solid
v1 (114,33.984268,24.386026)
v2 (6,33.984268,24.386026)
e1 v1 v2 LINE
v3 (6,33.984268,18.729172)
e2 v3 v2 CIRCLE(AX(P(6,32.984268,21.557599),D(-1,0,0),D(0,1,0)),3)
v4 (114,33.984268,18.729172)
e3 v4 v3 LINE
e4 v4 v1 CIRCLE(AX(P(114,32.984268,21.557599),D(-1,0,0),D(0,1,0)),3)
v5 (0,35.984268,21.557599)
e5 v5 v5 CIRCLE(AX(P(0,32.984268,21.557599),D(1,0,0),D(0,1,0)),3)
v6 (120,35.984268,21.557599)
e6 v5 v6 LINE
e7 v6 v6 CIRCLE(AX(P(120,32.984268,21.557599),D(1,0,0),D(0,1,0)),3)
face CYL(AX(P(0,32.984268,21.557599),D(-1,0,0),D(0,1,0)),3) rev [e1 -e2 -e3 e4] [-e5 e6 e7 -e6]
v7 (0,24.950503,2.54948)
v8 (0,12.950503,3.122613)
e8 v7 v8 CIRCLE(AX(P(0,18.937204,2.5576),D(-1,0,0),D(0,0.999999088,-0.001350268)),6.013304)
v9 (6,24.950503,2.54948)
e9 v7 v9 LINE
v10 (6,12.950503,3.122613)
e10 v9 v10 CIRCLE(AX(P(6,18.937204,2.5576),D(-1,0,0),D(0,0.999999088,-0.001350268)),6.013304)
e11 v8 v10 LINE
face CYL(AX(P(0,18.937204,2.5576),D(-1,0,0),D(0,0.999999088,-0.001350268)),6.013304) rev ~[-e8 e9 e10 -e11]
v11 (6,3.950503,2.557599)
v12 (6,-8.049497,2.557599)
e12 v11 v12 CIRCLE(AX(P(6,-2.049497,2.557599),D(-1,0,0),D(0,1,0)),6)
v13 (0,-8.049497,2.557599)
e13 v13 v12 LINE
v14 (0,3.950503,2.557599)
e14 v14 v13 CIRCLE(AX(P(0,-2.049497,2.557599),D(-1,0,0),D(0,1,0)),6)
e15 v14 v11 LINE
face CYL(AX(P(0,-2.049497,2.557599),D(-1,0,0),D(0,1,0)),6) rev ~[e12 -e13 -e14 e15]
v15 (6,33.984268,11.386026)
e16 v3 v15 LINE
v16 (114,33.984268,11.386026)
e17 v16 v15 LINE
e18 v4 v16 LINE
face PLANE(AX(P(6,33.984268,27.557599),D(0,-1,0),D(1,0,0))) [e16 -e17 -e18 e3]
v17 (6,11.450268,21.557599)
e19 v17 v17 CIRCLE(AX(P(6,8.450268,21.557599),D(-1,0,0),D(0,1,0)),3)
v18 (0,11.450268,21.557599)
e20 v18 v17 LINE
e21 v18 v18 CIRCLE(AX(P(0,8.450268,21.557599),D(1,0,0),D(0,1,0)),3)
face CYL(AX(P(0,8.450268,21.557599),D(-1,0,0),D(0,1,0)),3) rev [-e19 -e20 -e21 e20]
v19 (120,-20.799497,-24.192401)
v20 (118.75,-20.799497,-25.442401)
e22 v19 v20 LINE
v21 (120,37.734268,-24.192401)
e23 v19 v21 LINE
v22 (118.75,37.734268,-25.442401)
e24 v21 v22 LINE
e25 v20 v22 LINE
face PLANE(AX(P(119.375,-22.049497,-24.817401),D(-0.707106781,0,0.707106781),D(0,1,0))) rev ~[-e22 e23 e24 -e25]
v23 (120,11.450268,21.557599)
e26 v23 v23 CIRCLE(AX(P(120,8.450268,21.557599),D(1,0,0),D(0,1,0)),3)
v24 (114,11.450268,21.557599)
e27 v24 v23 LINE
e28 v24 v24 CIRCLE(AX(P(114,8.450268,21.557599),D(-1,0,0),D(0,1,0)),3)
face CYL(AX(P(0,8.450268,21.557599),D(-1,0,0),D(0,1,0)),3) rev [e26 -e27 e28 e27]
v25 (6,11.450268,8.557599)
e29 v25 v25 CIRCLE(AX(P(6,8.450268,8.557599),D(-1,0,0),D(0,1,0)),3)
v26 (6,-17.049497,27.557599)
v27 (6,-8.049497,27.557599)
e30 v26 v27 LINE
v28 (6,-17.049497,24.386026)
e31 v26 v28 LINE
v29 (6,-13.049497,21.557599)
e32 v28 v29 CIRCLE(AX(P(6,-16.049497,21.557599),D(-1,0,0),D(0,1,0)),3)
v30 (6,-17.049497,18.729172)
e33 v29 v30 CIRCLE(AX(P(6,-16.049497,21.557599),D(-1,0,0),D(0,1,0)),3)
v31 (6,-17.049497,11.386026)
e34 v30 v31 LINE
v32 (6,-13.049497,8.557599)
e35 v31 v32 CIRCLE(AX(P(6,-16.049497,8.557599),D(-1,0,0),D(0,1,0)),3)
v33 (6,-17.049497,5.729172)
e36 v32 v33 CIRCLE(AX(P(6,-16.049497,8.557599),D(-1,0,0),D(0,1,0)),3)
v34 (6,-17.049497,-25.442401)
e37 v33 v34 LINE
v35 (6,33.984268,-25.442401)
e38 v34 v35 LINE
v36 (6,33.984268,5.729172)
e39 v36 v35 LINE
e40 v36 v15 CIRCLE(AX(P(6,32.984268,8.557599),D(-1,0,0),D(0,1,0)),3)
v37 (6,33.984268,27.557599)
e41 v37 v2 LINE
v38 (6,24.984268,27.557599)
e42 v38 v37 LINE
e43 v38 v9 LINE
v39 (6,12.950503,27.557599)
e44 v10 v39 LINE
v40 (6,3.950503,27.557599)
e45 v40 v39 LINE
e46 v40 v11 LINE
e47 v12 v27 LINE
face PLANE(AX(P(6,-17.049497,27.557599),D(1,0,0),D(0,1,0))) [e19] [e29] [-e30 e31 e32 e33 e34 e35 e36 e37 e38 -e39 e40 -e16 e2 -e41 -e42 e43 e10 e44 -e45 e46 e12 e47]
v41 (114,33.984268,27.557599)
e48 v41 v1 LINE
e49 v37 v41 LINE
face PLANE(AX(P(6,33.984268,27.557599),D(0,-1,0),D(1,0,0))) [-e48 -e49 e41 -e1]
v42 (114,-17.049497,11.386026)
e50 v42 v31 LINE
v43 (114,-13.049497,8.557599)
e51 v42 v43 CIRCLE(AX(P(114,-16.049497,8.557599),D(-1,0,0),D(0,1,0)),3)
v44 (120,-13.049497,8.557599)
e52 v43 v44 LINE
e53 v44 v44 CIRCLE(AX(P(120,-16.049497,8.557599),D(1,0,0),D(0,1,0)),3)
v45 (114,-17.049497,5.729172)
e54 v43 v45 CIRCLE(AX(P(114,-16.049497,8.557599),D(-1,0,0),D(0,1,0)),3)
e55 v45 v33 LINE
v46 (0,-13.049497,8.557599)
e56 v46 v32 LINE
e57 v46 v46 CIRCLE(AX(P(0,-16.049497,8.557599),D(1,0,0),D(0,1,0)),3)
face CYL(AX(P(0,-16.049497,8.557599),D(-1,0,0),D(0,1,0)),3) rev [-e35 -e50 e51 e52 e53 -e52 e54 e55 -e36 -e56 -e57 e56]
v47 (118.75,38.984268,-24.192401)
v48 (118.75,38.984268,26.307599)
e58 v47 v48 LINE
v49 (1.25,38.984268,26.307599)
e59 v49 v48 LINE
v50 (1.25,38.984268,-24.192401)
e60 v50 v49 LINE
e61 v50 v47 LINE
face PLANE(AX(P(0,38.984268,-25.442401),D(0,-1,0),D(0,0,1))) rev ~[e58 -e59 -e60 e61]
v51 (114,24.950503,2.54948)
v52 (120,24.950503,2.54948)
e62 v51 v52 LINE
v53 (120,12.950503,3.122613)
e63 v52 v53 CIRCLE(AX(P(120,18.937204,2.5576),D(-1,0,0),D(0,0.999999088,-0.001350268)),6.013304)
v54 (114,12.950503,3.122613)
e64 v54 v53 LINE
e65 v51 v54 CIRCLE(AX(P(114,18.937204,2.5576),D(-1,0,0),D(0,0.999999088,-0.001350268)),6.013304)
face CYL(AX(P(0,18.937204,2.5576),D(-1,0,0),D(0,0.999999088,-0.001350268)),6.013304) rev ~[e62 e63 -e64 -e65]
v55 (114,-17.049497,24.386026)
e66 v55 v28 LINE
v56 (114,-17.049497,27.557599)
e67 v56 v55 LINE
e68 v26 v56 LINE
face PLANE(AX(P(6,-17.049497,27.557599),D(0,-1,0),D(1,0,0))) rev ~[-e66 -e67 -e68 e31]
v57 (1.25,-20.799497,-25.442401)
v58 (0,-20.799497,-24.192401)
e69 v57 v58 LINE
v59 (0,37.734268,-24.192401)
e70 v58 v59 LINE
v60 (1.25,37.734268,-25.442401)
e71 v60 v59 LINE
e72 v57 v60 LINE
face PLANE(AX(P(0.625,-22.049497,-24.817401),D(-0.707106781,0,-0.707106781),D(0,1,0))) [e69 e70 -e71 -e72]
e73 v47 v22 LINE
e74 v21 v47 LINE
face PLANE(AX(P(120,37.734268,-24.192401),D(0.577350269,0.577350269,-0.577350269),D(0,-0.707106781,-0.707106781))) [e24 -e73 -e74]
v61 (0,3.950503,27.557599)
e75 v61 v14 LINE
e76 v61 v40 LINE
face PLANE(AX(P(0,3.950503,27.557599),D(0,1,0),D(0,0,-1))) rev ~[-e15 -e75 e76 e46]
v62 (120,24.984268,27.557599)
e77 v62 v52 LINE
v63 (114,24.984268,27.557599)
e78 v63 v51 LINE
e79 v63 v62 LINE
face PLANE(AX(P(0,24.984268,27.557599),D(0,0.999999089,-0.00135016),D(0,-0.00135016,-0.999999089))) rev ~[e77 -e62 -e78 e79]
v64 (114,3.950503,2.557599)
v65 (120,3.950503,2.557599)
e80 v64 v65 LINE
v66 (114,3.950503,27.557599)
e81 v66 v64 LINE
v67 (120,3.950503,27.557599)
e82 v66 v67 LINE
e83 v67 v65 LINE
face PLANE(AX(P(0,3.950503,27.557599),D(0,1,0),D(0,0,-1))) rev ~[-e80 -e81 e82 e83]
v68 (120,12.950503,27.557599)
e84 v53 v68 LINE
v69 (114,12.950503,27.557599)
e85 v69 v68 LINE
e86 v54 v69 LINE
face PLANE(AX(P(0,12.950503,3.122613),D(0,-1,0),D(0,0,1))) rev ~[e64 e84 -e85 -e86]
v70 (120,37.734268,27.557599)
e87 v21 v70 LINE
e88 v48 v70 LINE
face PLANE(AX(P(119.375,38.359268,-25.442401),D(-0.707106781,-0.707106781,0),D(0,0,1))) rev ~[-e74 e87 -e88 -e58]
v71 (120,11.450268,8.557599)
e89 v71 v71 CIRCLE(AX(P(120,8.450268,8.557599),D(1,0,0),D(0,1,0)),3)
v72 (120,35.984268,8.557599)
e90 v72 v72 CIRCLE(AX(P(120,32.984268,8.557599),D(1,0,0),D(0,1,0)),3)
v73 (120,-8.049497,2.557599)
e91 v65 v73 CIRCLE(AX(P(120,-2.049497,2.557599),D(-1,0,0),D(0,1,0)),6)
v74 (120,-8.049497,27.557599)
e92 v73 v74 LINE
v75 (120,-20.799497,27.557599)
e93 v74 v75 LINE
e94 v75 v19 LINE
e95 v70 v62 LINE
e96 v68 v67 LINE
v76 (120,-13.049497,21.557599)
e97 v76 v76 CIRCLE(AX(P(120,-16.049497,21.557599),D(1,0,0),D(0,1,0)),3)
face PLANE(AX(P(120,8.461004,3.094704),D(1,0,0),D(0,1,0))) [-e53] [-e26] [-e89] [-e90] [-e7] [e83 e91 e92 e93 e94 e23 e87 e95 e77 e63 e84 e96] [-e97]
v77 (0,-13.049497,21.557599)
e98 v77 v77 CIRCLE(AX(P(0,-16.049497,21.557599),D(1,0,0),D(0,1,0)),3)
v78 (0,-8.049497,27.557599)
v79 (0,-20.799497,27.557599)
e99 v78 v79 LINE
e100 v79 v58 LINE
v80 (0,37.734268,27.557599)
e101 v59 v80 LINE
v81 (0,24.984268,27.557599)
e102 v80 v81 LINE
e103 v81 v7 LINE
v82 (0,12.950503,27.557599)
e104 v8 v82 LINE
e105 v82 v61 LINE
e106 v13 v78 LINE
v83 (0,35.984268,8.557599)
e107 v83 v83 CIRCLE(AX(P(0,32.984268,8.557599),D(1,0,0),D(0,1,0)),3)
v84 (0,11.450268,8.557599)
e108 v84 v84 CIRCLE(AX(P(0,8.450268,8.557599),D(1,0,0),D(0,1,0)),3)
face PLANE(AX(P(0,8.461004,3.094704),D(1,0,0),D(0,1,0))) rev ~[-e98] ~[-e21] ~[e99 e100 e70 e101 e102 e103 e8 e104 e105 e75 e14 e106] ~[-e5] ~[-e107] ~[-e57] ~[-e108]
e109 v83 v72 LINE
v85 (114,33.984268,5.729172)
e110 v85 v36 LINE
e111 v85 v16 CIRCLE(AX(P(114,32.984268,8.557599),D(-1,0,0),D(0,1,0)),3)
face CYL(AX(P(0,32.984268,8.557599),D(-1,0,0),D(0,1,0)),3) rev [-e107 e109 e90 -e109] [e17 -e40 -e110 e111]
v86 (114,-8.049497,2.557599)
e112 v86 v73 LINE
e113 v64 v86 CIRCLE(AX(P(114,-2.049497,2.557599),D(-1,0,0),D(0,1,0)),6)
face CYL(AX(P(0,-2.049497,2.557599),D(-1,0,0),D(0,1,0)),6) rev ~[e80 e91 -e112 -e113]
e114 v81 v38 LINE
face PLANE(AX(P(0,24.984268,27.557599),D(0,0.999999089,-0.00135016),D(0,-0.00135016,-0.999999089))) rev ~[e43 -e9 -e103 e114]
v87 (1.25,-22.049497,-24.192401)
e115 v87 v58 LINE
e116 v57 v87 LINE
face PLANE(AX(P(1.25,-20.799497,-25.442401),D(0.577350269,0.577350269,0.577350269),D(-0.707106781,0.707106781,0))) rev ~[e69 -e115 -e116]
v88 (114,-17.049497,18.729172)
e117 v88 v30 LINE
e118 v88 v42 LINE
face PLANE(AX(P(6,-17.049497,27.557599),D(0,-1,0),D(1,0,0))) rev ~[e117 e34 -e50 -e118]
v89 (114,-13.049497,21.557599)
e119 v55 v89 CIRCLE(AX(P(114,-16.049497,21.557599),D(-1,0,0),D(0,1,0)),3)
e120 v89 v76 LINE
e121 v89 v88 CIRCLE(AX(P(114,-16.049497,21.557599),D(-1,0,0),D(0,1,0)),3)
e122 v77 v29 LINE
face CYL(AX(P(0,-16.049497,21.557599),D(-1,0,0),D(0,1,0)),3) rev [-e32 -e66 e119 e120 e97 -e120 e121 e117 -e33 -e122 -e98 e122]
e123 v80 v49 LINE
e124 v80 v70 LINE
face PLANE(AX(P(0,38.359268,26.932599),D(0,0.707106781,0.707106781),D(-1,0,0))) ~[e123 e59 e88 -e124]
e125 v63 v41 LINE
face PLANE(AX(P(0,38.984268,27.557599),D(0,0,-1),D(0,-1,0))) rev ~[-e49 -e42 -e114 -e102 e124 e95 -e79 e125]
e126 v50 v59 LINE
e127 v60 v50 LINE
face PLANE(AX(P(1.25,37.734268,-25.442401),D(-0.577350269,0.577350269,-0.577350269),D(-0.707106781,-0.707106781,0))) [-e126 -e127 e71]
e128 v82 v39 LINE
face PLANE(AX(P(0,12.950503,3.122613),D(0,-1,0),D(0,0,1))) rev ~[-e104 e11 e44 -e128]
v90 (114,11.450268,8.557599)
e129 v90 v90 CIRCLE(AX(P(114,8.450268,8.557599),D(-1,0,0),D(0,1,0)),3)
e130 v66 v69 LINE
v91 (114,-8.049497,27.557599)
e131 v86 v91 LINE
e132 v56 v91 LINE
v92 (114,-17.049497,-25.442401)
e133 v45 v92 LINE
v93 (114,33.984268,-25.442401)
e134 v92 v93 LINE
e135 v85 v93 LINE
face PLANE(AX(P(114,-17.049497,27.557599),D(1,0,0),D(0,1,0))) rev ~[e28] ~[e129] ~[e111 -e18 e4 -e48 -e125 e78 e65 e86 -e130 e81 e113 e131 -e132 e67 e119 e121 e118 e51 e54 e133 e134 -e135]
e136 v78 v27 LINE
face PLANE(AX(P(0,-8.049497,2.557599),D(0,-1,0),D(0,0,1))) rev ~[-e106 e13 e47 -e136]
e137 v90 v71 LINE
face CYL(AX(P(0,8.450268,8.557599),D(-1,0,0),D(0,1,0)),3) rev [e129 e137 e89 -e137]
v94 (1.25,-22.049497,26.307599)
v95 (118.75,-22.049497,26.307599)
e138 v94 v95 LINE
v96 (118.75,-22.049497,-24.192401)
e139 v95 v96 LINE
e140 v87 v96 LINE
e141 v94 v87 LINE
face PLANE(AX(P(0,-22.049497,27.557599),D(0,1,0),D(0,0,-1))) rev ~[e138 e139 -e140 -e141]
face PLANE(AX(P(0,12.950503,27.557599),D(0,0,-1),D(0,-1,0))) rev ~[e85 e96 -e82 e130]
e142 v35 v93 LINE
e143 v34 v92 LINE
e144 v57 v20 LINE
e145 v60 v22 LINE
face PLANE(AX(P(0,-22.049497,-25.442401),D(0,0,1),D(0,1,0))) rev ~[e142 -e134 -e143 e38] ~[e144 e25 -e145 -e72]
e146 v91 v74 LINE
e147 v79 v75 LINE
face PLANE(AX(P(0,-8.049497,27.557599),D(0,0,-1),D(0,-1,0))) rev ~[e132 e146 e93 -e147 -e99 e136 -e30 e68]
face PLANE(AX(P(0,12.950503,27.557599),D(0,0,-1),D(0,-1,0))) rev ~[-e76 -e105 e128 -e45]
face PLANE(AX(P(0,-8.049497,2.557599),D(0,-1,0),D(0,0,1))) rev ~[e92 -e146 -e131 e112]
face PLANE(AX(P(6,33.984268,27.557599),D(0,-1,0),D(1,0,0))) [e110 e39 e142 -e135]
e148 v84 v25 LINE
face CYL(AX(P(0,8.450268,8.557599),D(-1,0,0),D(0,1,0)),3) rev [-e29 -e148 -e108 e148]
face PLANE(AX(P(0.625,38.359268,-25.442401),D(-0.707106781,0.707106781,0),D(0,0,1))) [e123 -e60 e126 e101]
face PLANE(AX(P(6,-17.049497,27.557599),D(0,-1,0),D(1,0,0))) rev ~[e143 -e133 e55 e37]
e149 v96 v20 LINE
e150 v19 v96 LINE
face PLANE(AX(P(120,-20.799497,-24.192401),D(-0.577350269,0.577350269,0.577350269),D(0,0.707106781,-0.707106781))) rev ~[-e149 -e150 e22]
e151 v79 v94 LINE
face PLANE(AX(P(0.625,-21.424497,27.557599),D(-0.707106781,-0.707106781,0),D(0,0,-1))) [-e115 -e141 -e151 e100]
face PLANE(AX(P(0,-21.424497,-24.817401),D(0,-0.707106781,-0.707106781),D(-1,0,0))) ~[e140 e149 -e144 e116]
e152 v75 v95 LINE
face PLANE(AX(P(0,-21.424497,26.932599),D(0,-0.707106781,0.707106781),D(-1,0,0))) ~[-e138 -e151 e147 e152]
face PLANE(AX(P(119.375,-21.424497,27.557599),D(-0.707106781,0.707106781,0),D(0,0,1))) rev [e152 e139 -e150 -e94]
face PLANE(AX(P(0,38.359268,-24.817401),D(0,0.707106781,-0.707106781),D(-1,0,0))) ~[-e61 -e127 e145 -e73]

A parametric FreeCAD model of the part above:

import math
import FreeCAD as App
import Part
import Sketcher


def edges_at(feature, points):
    """Names of the edges that pass closest to the given points."""
    edges = feature.Shape.Edges
    near = lambda p: min(range(len(edges)), key=lambda i: edges[i].distToShape(Part.Vertex(*p))[0])
    return sorted({f"Edge{near(p) + 1}" for p in points})

doc = App.newDocument("Part")
params = doc.addObject("Spreadsheet::Sheet", "Params")
for row, (alias, value) in enumerate([
    ("sketch1_diameter", "6 mm"),
    ("sketch1_radius", "6 mm"),
    ("sketch1_width", "14 mm"),
    ("sketch1_width2", "9 mm"),
    ("sketch1_height", "53 mm"),
    ("pad1_length", "120 mm"),
    ("sketch2_width", "108 mm"),
    ("pocket1_length", "80 mm"),
    ("chamfer_size", "1.25 mm"),
], start=1):
    params.set(f"A{row}", alias)
    params.set(f"B{row}", "=" + value)
    params.setAlias(f"B{row}", alias)

body = doc.addObject("PartDesign::Body", "Body")

sketch1 = doc.addObject("Sketcher::SketchObject", "Sketch")
body.addObject(sketch1)
sketch1.AttachmentSupport = (doc.YZ_Plane, [""])
sketch1.MapMode = "FlatFace"
sketch1.addGeometry([
    Part.LineSegment(App.Vector(-8, 27.6, 0), App.Vector(-22, 27.6, 0)),
    Part.LineSegment(App.Vector(-22, 27.6, 0), App.Vector(-22, -25.4, 0)),
    Part.LineSegment(App.Vector(-22, -25.4, 0), App.Vector(39, -25.4, 0)),
    Part.LineSegment(App.Vector(39, -25.4, 0), App.Vector(39, 27.6, 0)),
    Part.LineSegment(App.Vector(39, 27.6, 0), App.Vector(25, 27.6, 0)),
    Part.LineSegment(App.Vector(25, 27.6, 0), App.Vector(25, 2.5, 0)),
    Part.ArcOfCircle(Part.Circle(App.Vector(18.9, 2.6, 0), App.Vector(0, 0, 1), 6), math.radians(175), math.radians(360)),
    Part.LineSegment(App.Vector(13, 3.1, 0), App.Vector(13, 27.6, 0)),
    Part.LineSegment(App.Vector(13, 27.6, 0), App.Vector(4, 27.6, 0)),
    Part.LineSegment(App.Vector(4, 27.6, 0), App.Vector(4, 2.6, 0)),
    Part.ArcOfCircle(Part.Circle(App.Vector(-2, 2.6, 0), App.Vector(0, 0, 1), 6), math.radians(180), math.radians(360)),
    Part.LineSegment(App.Vector(-8, 2.6, 0), App.Vector(-8, 27.6, 0)),
    Part.Circle(App.Vector(-16, 8.6, 0), App.Vector(0, 0, 1), 3),
    Part.Circle(App.Vector(8.5, 8.6, 0), App.Vector(0, 0, 1), 3),
    Part.Circle(App.Vector(33, 8.6, 0), App.Vector(0, 0, 1), 3),
    Part.Circle(App.Vector(-16, 21.6, 0), App.Vector(0, 0, 1), 3),
    Part.Circle(App.Vector(8.5, 21.6, 0), App.Vector(0, 0, 1), 3),
    Part.Circle(App.Vector(33, 21.6, 0), App.Vector(0, 0, 1), 3),
], False)
sketch1.addConstraint([
    Sketcher.Constraint("Coincident", 0, 2, 1, 1),
    Sketcher.Constraint("Coincident", 1, 2, 2, 1),
    Sketcher.Constraint("Coincident", 2, 2, 3, 1),
    Sketcher.Constraint("Coincident", 3, 2, 4, 1),
    Sketcher.Constraint("Coincident", 4, 2, 5, 1),
    Sketcher.Constraint("Tangent", 5, 2, 6, 2),
    Sketcher.Constraint("Coincident", 6, 1, 7, 1),
    Sketcher.Constraint("Coincident", 7, 2, 8, 1),
    Sketcher.Constraint("Coincident", 8, 2, 9, 1),
    Sketcher.Constraint("Tangent", 9, 2, 10, 2),
    Sketcher.Constraint("Tangent", 10, 1, 11, 1),
    Sketcher.Constraint("Coincident", 11, 2, 0, 1),
    Sketcher.Constraint("Horizontal", 0),
    Sketcher.Constraint("Vertical", 1),
    Sketcher.Constraint("Horizontal", 2),
    Sketcher.Constraint("Vertical", 3),
    Sketcher.Constraint("Horizontal", 4),
    Sketcher.Constraint("Vertical", 7),
    Sketcher.Constraint("Horizontal", 8),
    Sketcher.Constraint("Vertical", 9),
    Sketcher.Constraint("Vertical", 11),
    Sketcher.Constraint("Equal", 12, 13),
    Sketcher.Constraint("Equal", 13, 14),
    Sketcher.Constraint("Equal", 14, 15),
    Sketcher.Constraint("Equal", 15, 16),
    Sketcher.Constraint("Equal", 16, 17),
    Sketcher.Constraint("Horizontal", 6, 3, 10, 3),
    Sketcher.Constraint("Horizontal", 12, 3, 13, 3),
    Sketcher.Constraint("Horizontal", 13, 3, 14, 3),
    Sketcher.Constraint("Horizontal", 15, 3, 16, 3),
    Sketcher.Constraint("Horizontal", 16, 3, 17, 3),
    Sketcher.Constraint("Horizontal", 0, 2, 3, 2),
    Sketcher.Constraint("Horizontal", 4, 2, 7, 2),
    Sketcher.Constraint("Vertical", 12, 3, 15, 3),
    Sketcher.Constraint("Vertical", 13, 3, 16, 3),
    Sketcher.Constraint("Vertical", 14, 3, 17, 3),
    Sketcher.Constraint("Equal", 0, 4),
    Sketcher.Constraint("Diameter", 12, 6.0),
    Sketcher.Constraint("Radius", 10, 6.0),
    Sketcher.Constraint("DistanceX", 0, 2, 0, 1, 14.0),
    Sketcher.Constraint("DistanceX", 8, 2, 8, 1, 9.0),
    Sketcher.Constraint("DistanceY", 1, 2, 1, 1, 53.0),
    Sketcher.Constraint("DistanceY", 9, 2, 9, 1, 25.0),
    Sketcher.Constraint("DistanceX", 12, 3, 10, 3, 14.0),
    Sketcher.Constraint("DistanceY", 10, 3, 12, 3, 6.0),
    Sketcher.Constraint("DistanceY", 12, 3, 15, 3, 13.0),
    Sketcher.Constraint("DistanceX", 14, 3, 2, 2, 6.0),
    Sketcher.Constraint("DistanceX", 6, 1, 5, 2, 12.0),
    Sketcher.Constraint("Radius", 6, 6.013304),
    Sketcher.Constraint("DistanceX", 13, 3, 14, 3, 24.534),
    Sketcher.Constraint("DistanceY", -1, 1, 6, 3, 2.5576),
    Sketcher.Constraint("Distance", 5, 25.008142),
    Sketcher.Constraint("DistanceX", -1, 1, 4, 2, 24.984268),
])
sketch1.setExpression("Constraints[37]", "Params.sketch1_diameter")
sketch1.setExpression("Constraints[38]", "Params.sketch1_radius")
sketch1.setExpression("Constraints[39]", "Params.sketch1_width")
sketch1.setExpression("Constraints[40]", "Params.sketch1_width2")
sketch1.setExpression("Constraints[41]", "Params.sketch1_height")
pad1 = doc.addObject("PartDesign::Pad", "Pad")
body.addObject(pad1)
pad1.Profile = sketch1
pad1.setExpression("Length", "Params.pad1_length")

sketch2 = doc.addObject("Sketcher::SketchObject", "Sketch001")
body.addObject(sketch2)
sketch2.AttachmentSupport = (doc.XY_Plane, [""])
sketch2.MapMode = "FlatFace"
sketch2.AttachmentOffset = App.Placement(App.Vector(0, 0, 27.557599), App.Rotation())
sketch2.addGeometry([
    Part.LineSegment(App.Vector(6, 34, 0), App.Vector(6, -17, 0)),
    Part.LineSegment(App.Vector(6, -17, 0), App.Vector(114, -17, 0)),
    Part.LineSegment(App.Vector(114, -17, 0), App.Vector(114, 34, 0)),
    Part.LineSegment(App.Vector(114, 34, 0), App.Vector(6, 34, 0)),
], False)
sketch2.addConstraint([
    Sketcher.Constraint("Coincident", 0, 2, 1, 1),
    Sketcher.Constraint("Coincident", 1, 2, 2, 1),
    Sketcher.Constraint("Coincident", 2, 2, 3, 1),
    Sketcher.Constraint("Coincident", 3, 2, 0, 1),
    Sketcher.Constraint("Vertical", 0),
    Sketcher.Constraint("Horizontal", 1),
    Sketcher.Constraint("Vertical", 2),
    Sketcher.Constraint("Horizontal", 3),
    Sketcher.Constraint("DistanceX", 1, 1, 1, 2, 108.0),
    Sketcher.Constraint("DistanceX", -1, 1, 0, 2, 6.0),
    Sketcher.Constraint("DistanceY", 0, 2, 0, 1, 51.033765),
    Sketcher.Constraint("DistanceY", -1, 1, 2, 2, 33.984268),
])
sketch2.setExpression("Constraints[8]", "Params.sketch2_width")
pocket1 = doc.addObject("PartDesign::Pocket", "Pocket")
body.addObject(pocket1)
pocket1.Profile = sketch2
pocket1.setExpression("Length", "Params.pocket1_length")
doc.recompute()

chamfer = doc.addObject("PartDesign::Chamfer", "Chamfer")
body.addObject(chamfer)
chamfer.Base = (pocket1, edges_at(pocket1, [
    (0, 38.984, 1.058),
    (0, -22.049, 1.058),
    (60, -22.049, 27.558),
    (60, -22.049, -25.442),
    (120, -22.049, 1.058),
    (60, 38.984, -25.442),
    (60, 38.984, 27.558),
    (120, 38.984, 1.058),
    (120, 8.467, -25.442),
    (0, 8.467, -25.442),
]))
chamfer.setExpression("Size", "Params.chamfer_size")

doc.recompute()
